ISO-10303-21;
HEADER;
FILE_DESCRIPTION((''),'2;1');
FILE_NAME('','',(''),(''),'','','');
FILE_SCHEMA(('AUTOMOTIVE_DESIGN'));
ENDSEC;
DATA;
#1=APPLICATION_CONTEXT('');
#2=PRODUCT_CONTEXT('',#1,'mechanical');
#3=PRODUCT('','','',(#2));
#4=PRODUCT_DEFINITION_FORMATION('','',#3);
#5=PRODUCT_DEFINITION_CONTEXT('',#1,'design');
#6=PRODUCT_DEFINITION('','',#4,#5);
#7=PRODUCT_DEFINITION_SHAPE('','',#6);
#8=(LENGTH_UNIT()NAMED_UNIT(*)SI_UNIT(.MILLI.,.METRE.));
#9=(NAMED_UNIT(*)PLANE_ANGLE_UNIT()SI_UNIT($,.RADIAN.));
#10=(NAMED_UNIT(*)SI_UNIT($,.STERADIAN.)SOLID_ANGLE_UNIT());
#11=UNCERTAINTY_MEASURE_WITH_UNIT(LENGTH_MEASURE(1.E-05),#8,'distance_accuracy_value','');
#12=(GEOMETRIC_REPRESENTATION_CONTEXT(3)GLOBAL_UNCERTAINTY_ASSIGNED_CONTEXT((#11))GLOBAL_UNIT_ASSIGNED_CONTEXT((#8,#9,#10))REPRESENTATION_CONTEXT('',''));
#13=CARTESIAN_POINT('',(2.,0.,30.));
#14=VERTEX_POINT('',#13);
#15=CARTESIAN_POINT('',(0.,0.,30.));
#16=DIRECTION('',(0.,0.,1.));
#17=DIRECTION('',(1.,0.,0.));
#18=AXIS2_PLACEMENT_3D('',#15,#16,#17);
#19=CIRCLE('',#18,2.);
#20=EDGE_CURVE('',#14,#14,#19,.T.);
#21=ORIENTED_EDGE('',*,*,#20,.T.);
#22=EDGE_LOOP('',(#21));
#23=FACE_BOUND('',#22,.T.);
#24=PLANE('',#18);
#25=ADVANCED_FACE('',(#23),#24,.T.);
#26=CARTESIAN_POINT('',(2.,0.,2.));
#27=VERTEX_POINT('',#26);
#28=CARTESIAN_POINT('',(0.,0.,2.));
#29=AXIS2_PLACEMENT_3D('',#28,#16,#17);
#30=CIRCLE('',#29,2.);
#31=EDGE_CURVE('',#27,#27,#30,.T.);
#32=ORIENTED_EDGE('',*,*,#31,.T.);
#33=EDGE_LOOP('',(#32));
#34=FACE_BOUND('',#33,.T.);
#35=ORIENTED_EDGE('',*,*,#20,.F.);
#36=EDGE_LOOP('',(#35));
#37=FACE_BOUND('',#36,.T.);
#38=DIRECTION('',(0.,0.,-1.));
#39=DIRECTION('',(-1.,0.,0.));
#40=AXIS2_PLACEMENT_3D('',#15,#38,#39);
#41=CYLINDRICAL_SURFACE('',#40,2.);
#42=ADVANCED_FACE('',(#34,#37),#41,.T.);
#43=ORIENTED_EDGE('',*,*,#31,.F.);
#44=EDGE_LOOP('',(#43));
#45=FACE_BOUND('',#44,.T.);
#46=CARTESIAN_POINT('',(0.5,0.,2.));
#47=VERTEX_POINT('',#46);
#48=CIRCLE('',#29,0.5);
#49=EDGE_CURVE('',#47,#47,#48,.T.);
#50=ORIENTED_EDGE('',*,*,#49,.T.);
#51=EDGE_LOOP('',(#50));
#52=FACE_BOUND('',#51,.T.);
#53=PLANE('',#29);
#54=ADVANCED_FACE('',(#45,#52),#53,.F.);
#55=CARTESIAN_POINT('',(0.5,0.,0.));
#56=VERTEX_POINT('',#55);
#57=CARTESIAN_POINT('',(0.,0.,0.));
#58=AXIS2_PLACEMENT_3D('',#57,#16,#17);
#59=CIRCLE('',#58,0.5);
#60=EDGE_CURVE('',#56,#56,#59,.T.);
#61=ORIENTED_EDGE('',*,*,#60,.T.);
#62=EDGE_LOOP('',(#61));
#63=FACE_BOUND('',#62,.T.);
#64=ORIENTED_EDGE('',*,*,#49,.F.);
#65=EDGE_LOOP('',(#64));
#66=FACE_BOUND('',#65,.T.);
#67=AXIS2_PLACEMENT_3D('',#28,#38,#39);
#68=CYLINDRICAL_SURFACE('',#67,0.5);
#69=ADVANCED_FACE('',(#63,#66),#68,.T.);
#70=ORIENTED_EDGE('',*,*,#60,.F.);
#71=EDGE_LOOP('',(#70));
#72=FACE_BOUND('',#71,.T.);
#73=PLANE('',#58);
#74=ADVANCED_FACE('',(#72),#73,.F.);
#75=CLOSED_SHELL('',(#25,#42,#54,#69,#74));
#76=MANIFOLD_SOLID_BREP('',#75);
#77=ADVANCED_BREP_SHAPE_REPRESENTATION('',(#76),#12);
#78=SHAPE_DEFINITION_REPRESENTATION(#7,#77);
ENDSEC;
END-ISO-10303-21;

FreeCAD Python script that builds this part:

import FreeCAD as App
import Part
import Sketcher
from FreeCAD import Vector
Q = App.Units.Quantity

doc = App.newDocument("Part")
body = doc.addObject("PartDesign::Body", "Body")

sketch1 = body.newObject("Sketcher::SketchObject", "Sketch")
sketch1.AttachmentSupport = (doc.getObject("XY_Plane"), [""])
sketch1.MapMode = "FlatFace"
sketch1.addGeometry(Part.Circle(Vector(0, 0, 0), Vector(0, 0, 1), 0.5), False)
sketch1.addConstraint([
    Sketcher.Constraint("Coincident", 0, 3, -1, 1),
    Sketcher.Constraint("Diameter", 0, Q("1 mm")),
])
pad1 = body.newObject("PartDesign::Pad", "Pad")
pad1.Profile = sketch1
pad1.Length = 2

sketch2 = body.newObject("Sketcher::SketchObject", "Sketch001")
sketch2.AttachmentSupport = (doc.getObject("XY_Plane"), [""])
sketch2.MapMode = "FlatFace"
sketch2.AttachmentOffset = App.Placement(Vector(0, 0, 2), App.Rotation())
sketch2.addGeometry(Part.Circle(Vector(0, 0, 0), Vector(0, 0, 1), 2), False)
sketch2.addConstraint([
    Sketcher.Constraint("Coincident", 0, 3, -1, 1),
    Sketcher.Constraint("Diameter", 0, Q("4 mm")),
])
pad2 = body.newObject("PartDesign::Pad", "Pad001")
pad2.Profile = sketch2
pad2.Length = 28

doc.recompute()
